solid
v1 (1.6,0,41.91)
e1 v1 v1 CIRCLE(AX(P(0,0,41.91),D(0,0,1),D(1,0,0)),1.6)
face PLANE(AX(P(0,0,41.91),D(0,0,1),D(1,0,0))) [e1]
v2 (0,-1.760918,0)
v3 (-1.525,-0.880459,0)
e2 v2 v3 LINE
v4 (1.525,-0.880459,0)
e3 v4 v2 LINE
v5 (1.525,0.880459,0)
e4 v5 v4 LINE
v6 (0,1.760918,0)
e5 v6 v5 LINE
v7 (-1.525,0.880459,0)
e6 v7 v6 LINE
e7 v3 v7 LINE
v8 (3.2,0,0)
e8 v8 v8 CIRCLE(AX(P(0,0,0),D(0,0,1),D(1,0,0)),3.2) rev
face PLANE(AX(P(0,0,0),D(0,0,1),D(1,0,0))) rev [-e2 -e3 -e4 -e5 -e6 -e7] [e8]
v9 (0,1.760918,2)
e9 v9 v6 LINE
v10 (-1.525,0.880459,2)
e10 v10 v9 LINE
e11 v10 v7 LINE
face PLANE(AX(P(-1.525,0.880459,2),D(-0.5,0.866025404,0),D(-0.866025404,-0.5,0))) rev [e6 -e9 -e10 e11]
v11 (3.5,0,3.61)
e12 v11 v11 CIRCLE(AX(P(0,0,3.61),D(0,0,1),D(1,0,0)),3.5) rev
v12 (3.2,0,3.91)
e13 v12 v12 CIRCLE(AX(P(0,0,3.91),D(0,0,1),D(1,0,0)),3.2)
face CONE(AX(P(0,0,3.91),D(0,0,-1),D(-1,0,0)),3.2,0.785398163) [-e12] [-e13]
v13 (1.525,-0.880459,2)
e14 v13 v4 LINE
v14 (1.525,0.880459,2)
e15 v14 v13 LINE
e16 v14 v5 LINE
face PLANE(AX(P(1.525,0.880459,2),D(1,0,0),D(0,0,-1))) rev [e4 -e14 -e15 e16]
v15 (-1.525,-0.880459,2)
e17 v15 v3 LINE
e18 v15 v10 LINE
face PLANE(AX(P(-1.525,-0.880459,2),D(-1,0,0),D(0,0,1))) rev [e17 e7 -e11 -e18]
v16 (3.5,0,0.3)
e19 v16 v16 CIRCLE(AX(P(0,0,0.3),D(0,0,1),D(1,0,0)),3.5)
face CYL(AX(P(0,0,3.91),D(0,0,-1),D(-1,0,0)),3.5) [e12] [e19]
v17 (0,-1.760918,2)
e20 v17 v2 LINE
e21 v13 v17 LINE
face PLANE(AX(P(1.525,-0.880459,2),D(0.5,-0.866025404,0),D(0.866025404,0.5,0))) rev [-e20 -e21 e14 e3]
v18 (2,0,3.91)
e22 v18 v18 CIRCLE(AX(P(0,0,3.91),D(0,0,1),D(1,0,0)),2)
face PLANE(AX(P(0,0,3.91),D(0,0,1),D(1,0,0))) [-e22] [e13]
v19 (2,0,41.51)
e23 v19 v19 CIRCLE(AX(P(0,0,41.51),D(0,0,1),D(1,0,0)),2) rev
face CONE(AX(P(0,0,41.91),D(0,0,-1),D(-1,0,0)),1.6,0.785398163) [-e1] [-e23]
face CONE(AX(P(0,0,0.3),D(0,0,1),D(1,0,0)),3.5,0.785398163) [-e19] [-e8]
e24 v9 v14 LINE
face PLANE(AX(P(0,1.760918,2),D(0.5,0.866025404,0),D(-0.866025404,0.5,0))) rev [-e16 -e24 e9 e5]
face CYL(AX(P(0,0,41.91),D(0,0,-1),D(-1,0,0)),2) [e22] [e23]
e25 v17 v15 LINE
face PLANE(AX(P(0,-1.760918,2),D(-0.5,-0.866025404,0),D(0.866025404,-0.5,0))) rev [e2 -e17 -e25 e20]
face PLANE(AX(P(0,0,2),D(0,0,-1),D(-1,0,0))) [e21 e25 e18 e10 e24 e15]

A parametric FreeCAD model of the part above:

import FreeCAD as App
import Part
import Sketcher
Q = App.Units.Quantity


def edges_at(feature, points):
    """Names of the edges that pass closest to the given points."""
    edges = feature.Shape.Edges
    near = lambda p: min(range(len(edges)), key=lambda i: edges[i].distToShape(Part.Vertex(*p))[0])
    return sorted({f"Edge{near(p) + 1}" for p in points})


def add_polygon(sketch, points):
    """Adds a closed chain of lines whose ends are joined by coincident constraints."""
    first, n = sketch.GeometryCount, len(points)
    for a, b in zip(points, points[1:] + points[:1]):
        sketch.addGeometry(Part.LineSegment(App.Vector(*a, 0), App.Vector(*b, 0)), False)
    for i in range(n):
        sketch.addConstraint(Sketcher.Constraint("Coincident", first + i, 2, first + (i + 1) % n, 1))

doc = App.newDocument("Part")
body = doc.addObject("PartDesign::Body", "Body")

# Sketch on XY plane
sketch1 = body.newObject("Sketcher::SketchObject", "Sketch")
sketch1.AttachmentSupport = (doc.getObject("XY_Plane"), [""])
sketch1.MapMode = "FlatFace"
sketch1.addGeometry(Part.Circle(App.Vector(0, 0, 0), App.Vector(0, 0, 1), 3.5), False)
sketch1.addConstraint(Sketcher.Constraint("Coincident", 0, 3, -1, 1))
sketch1.addConstraint(Sketcher.Constraint("Diameter", 0, Q("7 mm")))
pad1 = body.newObject("PartDesign::Pad", "Pad")
pad1.Profile = sketch1
pad1.Length = 3.91

# Sketch on XY plane
sketch2 = body.newObject("Sketcher::SketchObject", "Sketch001")
sketch2.AttachmentSupport = (doc.getObject("XY_Plane"), [""])
sketch2.MapMode = "FlatFace"
sketch2.AttachmentOffset = App.Placement(App.Vector(0, 0, 3.91), App.Rotation())
sketch2.addGeometry(Part.Circle(App.Vector(0, 0, 0), App.Vector(0, 0, 1), 2), False)
sketch2.addConstraint(Sketcher.Constraint("Coincident", 0, 3, -1, 1))
sketch2.addConstraint(Sketcher.Constraint("Diameter", 0, Q("4 mm")))
pad2 = body.newObject("PartDesign::Pad", "Pad001")
pad2.Profile = sketch2
pad2.Length = 38

# Sketch on XY plane
sketch3 = body.newObject("Sketcher::SketchObject", "Sketch002")
sketch3.AttachmentSupport = (doc.getObject("XY_Plane"), [""])
sketch3.MapMode = "FlatFace"
add_polygon(sketch3, [(0, 1.8), (1.5, 0.9), (1.5, -0.9), (0, -1.8), (-1.5, -0.9), (-1.5, 0.9)])  # lines 0-5
sketch3.addConstraint(Sketcher.Constraint("Vertical", 1))
sketch3.addConstraint(Sketcher.Constraint("Vertical", 4))
sketch3.addConstraint(Sketcher.Constraint("Symmetric", 0, 2, 3, 2, -1, 1))
sketch3.addConstraint(Sketcher.Constraint("Symmetric", 2, 2, 5, 2, -1, 1))
sketch3.addConstraint(Sketcher.Constraint("PointOnObject", 2, 2, -2))
sketch3.addConstraint(Sketcher.Constraint("Parallel", 2, 5))
sketch3.addConstraint(Sketcher.Constraint("Horizontal", 1, 2, 3, 2))
sketch3.addConstraint(Sketcher.Constraint("Angle", 0, Q("-30 deg")))
sketch3.addConstraint(Sketcher.Constraint("DistanceX", 3, 2, 1, 2, Q("3.05 mm")))
sketch3.addConstraint(Sketcher.Constraint("DistanceY", 1, 2, 1, 1, Q("1.760918 mm")))
pocket1 = body.newObject("PartDesign::Pocket", "Pocket")
pocket1.Profile = sketch3
pocket1.Length = 2
pocket1.Reversed = True
doc.recompute()

chamfer = body.newObject("PartDesign::Chamfer", "Chamfer")
chamfer.Base = (pocket1, edges_at(pocket1, [(-2, 0, 41.91)]))
chamfer.Size = 0.4
doc.recompute()

chamfer2 = body.newObject("PartDesign::Chamfer", "Chamfer001")
chamfer2.Base = (chamfer, edges_at(chamfer, [(-3.5, 0, 0), (-3.5, 0, 3.91)]))
chamfer2.Size = 0.3

doc.recompute()
